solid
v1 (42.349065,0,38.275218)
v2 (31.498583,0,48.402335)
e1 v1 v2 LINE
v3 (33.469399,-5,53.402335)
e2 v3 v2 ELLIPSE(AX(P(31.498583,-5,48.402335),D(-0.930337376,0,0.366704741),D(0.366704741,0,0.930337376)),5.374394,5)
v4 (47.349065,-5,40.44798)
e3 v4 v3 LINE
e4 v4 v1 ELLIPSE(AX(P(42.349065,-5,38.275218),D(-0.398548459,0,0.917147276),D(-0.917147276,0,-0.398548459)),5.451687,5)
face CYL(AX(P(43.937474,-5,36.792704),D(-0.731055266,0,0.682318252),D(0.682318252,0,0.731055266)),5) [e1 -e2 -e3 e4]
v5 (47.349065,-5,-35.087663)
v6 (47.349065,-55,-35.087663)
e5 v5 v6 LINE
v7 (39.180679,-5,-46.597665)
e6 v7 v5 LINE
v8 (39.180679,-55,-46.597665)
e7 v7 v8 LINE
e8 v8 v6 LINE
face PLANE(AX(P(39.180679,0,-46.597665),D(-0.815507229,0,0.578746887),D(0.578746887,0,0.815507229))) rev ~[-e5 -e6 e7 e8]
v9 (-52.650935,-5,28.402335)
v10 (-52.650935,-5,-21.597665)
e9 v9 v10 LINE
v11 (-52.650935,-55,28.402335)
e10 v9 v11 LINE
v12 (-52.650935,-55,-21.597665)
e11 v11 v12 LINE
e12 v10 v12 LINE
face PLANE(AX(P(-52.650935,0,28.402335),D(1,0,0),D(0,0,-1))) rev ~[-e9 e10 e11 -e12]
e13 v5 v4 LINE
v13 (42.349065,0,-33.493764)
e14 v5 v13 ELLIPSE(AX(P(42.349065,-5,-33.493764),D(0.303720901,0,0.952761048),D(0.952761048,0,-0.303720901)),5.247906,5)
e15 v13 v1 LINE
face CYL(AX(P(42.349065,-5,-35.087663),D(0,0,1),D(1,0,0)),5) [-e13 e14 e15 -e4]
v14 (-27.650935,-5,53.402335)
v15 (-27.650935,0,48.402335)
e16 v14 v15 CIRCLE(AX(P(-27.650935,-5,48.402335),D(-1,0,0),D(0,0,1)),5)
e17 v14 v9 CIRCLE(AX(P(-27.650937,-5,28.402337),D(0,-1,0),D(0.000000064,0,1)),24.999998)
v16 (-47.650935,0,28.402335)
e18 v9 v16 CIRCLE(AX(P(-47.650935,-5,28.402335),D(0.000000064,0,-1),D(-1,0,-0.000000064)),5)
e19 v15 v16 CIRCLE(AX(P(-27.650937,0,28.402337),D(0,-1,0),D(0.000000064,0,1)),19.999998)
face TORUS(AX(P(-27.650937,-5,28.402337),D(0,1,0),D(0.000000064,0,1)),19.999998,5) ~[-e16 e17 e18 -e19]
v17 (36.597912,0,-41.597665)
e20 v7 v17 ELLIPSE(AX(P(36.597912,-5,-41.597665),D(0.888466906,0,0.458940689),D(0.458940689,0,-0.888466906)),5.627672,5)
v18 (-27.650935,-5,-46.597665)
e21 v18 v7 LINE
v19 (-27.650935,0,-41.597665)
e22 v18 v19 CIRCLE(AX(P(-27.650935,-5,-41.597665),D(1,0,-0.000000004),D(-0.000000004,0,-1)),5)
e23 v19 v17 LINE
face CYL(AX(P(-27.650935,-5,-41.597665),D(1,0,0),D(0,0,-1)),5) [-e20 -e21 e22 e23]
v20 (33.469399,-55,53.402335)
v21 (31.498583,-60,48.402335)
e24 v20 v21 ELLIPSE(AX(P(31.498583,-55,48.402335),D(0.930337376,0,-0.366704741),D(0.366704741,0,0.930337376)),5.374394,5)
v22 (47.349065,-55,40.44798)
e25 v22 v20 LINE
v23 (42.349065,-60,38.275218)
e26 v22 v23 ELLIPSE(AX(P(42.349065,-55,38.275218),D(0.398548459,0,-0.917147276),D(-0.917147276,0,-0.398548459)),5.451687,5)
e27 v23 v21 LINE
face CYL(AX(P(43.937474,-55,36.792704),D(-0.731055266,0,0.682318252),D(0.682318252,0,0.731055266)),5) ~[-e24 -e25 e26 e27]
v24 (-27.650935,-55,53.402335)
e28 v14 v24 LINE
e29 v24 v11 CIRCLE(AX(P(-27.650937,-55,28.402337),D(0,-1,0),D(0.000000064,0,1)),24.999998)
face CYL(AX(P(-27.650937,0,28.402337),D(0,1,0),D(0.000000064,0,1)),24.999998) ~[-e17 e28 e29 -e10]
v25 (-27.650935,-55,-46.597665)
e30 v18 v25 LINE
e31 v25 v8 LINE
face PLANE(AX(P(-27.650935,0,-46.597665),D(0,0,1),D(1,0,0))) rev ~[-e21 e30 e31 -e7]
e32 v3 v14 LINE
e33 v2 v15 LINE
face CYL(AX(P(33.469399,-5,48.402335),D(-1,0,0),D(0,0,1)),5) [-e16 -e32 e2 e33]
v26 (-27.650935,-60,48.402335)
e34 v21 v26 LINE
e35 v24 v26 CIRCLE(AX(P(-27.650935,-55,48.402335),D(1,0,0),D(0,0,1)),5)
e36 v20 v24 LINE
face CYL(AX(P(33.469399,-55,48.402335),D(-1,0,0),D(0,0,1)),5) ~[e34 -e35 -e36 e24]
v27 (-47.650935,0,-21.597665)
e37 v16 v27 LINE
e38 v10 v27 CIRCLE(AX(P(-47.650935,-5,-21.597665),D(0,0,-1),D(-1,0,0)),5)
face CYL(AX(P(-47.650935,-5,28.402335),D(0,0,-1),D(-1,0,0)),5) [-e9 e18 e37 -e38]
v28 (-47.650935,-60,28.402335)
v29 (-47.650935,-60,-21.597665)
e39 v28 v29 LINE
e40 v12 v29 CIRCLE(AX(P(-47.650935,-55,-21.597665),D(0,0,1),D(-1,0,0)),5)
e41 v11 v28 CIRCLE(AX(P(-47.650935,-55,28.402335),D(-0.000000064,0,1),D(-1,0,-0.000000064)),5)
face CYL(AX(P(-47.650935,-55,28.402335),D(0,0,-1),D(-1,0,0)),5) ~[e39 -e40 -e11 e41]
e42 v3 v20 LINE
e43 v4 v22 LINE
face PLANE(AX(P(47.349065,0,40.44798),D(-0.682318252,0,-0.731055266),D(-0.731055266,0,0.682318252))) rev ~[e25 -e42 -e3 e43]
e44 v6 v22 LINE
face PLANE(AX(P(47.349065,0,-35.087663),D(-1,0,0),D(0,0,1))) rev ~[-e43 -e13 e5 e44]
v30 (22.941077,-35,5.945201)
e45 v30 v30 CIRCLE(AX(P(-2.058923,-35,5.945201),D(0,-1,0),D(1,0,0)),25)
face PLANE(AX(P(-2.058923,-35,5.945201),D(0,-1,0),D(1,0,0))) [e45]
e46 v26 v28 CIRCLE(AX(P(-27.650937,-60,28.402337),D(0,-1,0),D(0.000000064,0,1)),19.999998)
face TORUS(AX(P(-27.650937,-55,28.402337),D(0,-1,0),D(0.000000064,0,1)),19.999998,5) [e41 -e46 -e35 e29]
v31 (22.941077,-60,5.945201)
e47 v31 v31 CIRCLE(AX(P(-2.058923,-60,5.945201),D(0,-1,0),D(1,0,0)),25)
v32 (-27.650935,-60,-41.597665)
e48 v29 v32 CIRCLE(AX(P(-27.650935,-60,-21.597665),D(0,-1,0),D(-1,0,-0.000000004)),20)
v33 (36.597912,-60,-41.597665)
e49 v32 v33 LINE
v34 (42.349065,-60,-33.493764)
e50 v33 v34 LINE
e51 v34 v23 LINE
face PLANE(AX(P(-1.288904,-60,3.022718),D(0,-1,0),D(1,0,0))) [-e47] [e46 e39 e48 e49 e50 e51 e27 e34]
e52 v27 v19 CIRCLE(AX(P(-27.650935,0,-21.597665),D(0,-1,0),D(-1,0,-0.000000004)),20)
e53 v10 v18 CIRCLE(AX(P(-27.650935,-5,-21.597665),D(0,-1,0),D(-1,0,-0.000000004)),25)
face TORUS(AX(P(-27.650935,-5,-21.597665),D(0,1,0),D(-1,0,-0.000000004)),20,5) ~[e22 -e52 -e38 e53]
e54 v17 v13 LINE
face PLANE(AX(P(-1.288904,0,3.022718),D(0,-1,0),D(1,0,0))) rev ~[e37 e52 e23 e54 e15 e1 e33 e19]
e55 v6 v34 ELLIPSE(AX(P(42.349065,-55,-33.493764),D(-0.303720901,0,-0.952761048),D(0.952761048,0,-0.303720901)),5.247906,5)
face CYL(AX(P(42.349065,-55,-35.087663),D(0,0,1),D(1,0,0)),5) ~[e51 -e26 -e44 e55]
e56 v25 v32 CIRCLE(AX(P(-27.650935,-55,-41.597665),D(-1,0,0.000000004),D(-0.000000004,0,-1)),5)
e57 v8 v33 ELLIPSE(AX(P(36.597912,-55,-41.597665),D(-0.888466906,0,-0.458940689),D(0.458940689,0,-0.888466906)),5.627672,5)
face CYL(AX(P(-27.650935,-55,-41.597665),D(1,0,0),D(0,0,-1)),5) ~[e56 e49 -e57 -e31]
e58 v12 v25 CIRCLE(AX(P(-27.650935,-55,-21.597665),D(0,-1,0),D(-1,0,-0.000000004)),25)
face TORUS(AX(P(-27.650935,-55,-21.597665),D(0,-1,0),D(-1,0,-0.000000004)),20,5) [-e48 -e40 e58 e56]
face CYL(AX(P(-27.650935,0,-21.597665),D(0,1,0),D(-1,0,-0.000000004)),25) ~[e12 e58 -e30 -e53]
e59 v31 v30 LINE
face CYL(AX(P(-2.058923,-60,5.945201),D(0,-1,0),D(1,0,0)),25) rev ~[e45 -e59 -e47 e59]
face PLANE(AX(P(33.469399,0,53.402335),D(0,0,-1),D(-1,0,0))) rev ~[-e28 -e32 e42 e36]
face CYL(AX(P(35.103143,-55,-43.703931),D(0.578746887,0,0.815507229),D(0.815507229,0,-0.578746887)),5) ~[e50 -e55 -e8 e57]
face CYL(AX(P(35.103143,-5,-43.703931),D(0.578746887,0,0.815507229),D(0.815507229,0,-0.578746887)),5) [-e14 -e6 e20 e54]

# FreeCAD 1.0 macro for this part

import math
import FreeCAD as App
import Part
import Sketcher

V = App.Vector
Q = App.Units.Quantity


def edges_at(feature, points):
    """Names of the edges that pass closest to the given points."""
    edges = feature.Shape.Edges
    near = lambda p: min(range(len(edges)), key=lambda i: edges[i].distToShape(Part.Vertex(*p))[0])
    return sorted({f"Edge{near(p) + 1}" for p in points})

doc = App.newDocument("Part")
params = doc.addObject("Spreadsheet::Sheet", "Params")
for row, (alias, value) in enumerate([
    ("sketch1_radius", "24.999998 mm"),
    ("sketch1_height", "50 mm"),
    ("pad1_length", "60 mm"),
    ("fillet_radius", "5 mm"),
    ("sketch2_diameter", "50 mm"),
    ("pocket1_length", "25 mm"),
], start=1):
    params.set(f"A{row}", alias)
    params.set(f"B{row}", "=" + value)
    params.setAlias(f"B{row}", alias)

body = doc.addObject("PartDesign::Body", "Body")

# Sketch on XZ plane
sketch1 = doc.addObject("Sketcher::SketchObject", "Sketch")
body.addObject(sketch1)
sketch1.AttachmentSupport = (doc.XZ_Plane, [""])
sketch1.MapMode = "FlatFace"
sketch1.addGeometry([
    Part.LineSegment(V(33, 53, 0), V(-28, 53, 0)),  # 0
    Part.ArcOfCircle(Part.Circle(V(-28, 28, 0), V(0, 0, 1), 25), math.radians(90), math.radians(180)),  # 1
    Part.LineSegment(V(-53, 28, 0), V(-53, -22, 0)),  # 2
    Part.ArcOfCircle(Part.Circle(V(-28, -22, 0), V(0, 0, 1), 25), math.radians(-180), math.radians(-90)),  # 3
    Part.LineSegment(V(-28, -47, 0), V(39, -47, 0)),  # 4
    Part.LineSegment(V(39, -47, 0), V(47, -35, 0)),  # 5
    Part.LineSegment(V(47, -35, 0), V(47, 40, 0)),  # 6
    Part.LineSegment(V(47, 40, 0), V(33, 53, 0)),  # 7
], False)
sketch1.addConstraint([
    Sketcher.Constraint("Tangent", 0, 2, 1, 1),
    Sketcher.Constraint("Tangent", 1, 2, 2, 1),
    Sketcher.Constraint("Tangent", 2, 2, 3, 1),
    Sketcher.Constraint("Tangent", 3, 2, 4, 1),
    Sketcher.Constraint("Coincident", 4, 2, 5, 1),
    Sketcher.Constraint("Coincident", 5, 2, 6, 1),
    Sketcher.Constraint("Coincident", 6, 2, 7, 1),
    Sketcher.Constraint("Coincident", 7, 2, 0, 1),
    Sketcher.Constraint("Horizontal", 0),
    Sketcher.Constraint("Vertical", 2),
    Sketcher.Constraint("Horizontal", 4),
    Sketcher.Constraint("Vertical", 6),
    Sketcher.Constraint("Equal", 1, 3),
    Sketcher.Constraint("Radius", 1, Q("24.999998 mm")),
    Sketcher.Constraint("DistanceY", 2, 2, 2, 1, Q("50 mm")),
    Sketcher.Constraint("DistanceX", 3, 2, 5, 2, Q("75 mm")),
    Sketcher.Constraint("DistanceY", 5, 2, 3, 3, Q("13.489998 mm")),
    Sketcher.Constraint("DistanceX", -1, 1, 7, 2, Q("33.469399 mm")),
    Sketcher.Constraint("DistanceX", 0, 2, 0, 1, Q("61.120334 mm")),
    Sketcher.Constraint("DistanceX", 4, 1, 4, 2, Q("66.831614 mm")),
    Sketcher.Constraint("DistanceY", 6, 1, 6, 2, Q("75.535643 mm")),
    Sketcher.Constraint("DistanceY", -1, 1, 6, 2, Q("40.44798 mm")),
])
sketch1.setExpression("Constraints[13]", "Params.sketch1_radius")
sketch1.setExpression("Constraints[14]", "Params.sketch1_height")
pad1 = doc.addObject("PartDesign::Pad", "Pad")
body.addObject(pad1)
pad1.Profile = sketch1
pad1.setExpression("Length", "Params.pad1_length")
doc.recompute()

fillet = doc.addObject("PartDesign::Fillet", "Fillet")
body.addObject(fillet)
fillet.Base = (pad1, edges_at(pad1, [
    (40.409, -60, 46.925),
    (2.909, -60, 53.402),
    (-45.329, -60, 46.08),
    (-52.651, -60, 3.402),
    (-45.329, -60, -39.275),
    (5.765, -60, -46.598),
    (43.265, -60, -40.843),
    (47.349, -60, 2.68),
    (40.409, 0, 46.925),
    (2.909, 0, 53.402),
    (-45.329, 0, 46.08),
    (-52.651, 0, 3.402),
    (-45.329, 0, -39.275),
    (5.765, 0, -46.598),
    (43.265, 0, -40.843),
    (47.349, 0, 2.68),
]))
fillet.setExpression("Radius", "Params.fillet_radius")

# Sketch on XZ plane
sketch2 = doc.addObject("Sketcher::SketchObject", "Sketch001")
body.addObject(sketch2)
sketch2.AttachmentSupport = (doc.XZ_Plane, [""])
sketch2.MapMode = "FlatFace"
sketch2.AttachmentOffset = App.Placement(V(0, 0, 60), App.Rotation())
sketch2.addGeometry(Part.Circle(V(-2, 6, 0), V(0, 0, 1), 25), False)
sketch2.addConstraint([
    Sketcher.Constraint("Diameter", 0, Q("50 mm")),
    Sketcher.Constraint("DistanceY", -1, 1, 0, 3, Q("5.945201 mm")),
    Sketcher.Constraint("DistanceX", 0, 3, -1, 1, Q("2.058923 mm")),
])
sketch2.setExpression("Constraints[0]", "Params.sketch2_diameter")
pocket1 = doc.addObject("PartDesign::Pocket", "Pocket")
body.addObject(pocket1)
pocket1.Profile = sketch2
pocket1.setExpression("Length", "Params.pocket1_length")

doc.recompute()
